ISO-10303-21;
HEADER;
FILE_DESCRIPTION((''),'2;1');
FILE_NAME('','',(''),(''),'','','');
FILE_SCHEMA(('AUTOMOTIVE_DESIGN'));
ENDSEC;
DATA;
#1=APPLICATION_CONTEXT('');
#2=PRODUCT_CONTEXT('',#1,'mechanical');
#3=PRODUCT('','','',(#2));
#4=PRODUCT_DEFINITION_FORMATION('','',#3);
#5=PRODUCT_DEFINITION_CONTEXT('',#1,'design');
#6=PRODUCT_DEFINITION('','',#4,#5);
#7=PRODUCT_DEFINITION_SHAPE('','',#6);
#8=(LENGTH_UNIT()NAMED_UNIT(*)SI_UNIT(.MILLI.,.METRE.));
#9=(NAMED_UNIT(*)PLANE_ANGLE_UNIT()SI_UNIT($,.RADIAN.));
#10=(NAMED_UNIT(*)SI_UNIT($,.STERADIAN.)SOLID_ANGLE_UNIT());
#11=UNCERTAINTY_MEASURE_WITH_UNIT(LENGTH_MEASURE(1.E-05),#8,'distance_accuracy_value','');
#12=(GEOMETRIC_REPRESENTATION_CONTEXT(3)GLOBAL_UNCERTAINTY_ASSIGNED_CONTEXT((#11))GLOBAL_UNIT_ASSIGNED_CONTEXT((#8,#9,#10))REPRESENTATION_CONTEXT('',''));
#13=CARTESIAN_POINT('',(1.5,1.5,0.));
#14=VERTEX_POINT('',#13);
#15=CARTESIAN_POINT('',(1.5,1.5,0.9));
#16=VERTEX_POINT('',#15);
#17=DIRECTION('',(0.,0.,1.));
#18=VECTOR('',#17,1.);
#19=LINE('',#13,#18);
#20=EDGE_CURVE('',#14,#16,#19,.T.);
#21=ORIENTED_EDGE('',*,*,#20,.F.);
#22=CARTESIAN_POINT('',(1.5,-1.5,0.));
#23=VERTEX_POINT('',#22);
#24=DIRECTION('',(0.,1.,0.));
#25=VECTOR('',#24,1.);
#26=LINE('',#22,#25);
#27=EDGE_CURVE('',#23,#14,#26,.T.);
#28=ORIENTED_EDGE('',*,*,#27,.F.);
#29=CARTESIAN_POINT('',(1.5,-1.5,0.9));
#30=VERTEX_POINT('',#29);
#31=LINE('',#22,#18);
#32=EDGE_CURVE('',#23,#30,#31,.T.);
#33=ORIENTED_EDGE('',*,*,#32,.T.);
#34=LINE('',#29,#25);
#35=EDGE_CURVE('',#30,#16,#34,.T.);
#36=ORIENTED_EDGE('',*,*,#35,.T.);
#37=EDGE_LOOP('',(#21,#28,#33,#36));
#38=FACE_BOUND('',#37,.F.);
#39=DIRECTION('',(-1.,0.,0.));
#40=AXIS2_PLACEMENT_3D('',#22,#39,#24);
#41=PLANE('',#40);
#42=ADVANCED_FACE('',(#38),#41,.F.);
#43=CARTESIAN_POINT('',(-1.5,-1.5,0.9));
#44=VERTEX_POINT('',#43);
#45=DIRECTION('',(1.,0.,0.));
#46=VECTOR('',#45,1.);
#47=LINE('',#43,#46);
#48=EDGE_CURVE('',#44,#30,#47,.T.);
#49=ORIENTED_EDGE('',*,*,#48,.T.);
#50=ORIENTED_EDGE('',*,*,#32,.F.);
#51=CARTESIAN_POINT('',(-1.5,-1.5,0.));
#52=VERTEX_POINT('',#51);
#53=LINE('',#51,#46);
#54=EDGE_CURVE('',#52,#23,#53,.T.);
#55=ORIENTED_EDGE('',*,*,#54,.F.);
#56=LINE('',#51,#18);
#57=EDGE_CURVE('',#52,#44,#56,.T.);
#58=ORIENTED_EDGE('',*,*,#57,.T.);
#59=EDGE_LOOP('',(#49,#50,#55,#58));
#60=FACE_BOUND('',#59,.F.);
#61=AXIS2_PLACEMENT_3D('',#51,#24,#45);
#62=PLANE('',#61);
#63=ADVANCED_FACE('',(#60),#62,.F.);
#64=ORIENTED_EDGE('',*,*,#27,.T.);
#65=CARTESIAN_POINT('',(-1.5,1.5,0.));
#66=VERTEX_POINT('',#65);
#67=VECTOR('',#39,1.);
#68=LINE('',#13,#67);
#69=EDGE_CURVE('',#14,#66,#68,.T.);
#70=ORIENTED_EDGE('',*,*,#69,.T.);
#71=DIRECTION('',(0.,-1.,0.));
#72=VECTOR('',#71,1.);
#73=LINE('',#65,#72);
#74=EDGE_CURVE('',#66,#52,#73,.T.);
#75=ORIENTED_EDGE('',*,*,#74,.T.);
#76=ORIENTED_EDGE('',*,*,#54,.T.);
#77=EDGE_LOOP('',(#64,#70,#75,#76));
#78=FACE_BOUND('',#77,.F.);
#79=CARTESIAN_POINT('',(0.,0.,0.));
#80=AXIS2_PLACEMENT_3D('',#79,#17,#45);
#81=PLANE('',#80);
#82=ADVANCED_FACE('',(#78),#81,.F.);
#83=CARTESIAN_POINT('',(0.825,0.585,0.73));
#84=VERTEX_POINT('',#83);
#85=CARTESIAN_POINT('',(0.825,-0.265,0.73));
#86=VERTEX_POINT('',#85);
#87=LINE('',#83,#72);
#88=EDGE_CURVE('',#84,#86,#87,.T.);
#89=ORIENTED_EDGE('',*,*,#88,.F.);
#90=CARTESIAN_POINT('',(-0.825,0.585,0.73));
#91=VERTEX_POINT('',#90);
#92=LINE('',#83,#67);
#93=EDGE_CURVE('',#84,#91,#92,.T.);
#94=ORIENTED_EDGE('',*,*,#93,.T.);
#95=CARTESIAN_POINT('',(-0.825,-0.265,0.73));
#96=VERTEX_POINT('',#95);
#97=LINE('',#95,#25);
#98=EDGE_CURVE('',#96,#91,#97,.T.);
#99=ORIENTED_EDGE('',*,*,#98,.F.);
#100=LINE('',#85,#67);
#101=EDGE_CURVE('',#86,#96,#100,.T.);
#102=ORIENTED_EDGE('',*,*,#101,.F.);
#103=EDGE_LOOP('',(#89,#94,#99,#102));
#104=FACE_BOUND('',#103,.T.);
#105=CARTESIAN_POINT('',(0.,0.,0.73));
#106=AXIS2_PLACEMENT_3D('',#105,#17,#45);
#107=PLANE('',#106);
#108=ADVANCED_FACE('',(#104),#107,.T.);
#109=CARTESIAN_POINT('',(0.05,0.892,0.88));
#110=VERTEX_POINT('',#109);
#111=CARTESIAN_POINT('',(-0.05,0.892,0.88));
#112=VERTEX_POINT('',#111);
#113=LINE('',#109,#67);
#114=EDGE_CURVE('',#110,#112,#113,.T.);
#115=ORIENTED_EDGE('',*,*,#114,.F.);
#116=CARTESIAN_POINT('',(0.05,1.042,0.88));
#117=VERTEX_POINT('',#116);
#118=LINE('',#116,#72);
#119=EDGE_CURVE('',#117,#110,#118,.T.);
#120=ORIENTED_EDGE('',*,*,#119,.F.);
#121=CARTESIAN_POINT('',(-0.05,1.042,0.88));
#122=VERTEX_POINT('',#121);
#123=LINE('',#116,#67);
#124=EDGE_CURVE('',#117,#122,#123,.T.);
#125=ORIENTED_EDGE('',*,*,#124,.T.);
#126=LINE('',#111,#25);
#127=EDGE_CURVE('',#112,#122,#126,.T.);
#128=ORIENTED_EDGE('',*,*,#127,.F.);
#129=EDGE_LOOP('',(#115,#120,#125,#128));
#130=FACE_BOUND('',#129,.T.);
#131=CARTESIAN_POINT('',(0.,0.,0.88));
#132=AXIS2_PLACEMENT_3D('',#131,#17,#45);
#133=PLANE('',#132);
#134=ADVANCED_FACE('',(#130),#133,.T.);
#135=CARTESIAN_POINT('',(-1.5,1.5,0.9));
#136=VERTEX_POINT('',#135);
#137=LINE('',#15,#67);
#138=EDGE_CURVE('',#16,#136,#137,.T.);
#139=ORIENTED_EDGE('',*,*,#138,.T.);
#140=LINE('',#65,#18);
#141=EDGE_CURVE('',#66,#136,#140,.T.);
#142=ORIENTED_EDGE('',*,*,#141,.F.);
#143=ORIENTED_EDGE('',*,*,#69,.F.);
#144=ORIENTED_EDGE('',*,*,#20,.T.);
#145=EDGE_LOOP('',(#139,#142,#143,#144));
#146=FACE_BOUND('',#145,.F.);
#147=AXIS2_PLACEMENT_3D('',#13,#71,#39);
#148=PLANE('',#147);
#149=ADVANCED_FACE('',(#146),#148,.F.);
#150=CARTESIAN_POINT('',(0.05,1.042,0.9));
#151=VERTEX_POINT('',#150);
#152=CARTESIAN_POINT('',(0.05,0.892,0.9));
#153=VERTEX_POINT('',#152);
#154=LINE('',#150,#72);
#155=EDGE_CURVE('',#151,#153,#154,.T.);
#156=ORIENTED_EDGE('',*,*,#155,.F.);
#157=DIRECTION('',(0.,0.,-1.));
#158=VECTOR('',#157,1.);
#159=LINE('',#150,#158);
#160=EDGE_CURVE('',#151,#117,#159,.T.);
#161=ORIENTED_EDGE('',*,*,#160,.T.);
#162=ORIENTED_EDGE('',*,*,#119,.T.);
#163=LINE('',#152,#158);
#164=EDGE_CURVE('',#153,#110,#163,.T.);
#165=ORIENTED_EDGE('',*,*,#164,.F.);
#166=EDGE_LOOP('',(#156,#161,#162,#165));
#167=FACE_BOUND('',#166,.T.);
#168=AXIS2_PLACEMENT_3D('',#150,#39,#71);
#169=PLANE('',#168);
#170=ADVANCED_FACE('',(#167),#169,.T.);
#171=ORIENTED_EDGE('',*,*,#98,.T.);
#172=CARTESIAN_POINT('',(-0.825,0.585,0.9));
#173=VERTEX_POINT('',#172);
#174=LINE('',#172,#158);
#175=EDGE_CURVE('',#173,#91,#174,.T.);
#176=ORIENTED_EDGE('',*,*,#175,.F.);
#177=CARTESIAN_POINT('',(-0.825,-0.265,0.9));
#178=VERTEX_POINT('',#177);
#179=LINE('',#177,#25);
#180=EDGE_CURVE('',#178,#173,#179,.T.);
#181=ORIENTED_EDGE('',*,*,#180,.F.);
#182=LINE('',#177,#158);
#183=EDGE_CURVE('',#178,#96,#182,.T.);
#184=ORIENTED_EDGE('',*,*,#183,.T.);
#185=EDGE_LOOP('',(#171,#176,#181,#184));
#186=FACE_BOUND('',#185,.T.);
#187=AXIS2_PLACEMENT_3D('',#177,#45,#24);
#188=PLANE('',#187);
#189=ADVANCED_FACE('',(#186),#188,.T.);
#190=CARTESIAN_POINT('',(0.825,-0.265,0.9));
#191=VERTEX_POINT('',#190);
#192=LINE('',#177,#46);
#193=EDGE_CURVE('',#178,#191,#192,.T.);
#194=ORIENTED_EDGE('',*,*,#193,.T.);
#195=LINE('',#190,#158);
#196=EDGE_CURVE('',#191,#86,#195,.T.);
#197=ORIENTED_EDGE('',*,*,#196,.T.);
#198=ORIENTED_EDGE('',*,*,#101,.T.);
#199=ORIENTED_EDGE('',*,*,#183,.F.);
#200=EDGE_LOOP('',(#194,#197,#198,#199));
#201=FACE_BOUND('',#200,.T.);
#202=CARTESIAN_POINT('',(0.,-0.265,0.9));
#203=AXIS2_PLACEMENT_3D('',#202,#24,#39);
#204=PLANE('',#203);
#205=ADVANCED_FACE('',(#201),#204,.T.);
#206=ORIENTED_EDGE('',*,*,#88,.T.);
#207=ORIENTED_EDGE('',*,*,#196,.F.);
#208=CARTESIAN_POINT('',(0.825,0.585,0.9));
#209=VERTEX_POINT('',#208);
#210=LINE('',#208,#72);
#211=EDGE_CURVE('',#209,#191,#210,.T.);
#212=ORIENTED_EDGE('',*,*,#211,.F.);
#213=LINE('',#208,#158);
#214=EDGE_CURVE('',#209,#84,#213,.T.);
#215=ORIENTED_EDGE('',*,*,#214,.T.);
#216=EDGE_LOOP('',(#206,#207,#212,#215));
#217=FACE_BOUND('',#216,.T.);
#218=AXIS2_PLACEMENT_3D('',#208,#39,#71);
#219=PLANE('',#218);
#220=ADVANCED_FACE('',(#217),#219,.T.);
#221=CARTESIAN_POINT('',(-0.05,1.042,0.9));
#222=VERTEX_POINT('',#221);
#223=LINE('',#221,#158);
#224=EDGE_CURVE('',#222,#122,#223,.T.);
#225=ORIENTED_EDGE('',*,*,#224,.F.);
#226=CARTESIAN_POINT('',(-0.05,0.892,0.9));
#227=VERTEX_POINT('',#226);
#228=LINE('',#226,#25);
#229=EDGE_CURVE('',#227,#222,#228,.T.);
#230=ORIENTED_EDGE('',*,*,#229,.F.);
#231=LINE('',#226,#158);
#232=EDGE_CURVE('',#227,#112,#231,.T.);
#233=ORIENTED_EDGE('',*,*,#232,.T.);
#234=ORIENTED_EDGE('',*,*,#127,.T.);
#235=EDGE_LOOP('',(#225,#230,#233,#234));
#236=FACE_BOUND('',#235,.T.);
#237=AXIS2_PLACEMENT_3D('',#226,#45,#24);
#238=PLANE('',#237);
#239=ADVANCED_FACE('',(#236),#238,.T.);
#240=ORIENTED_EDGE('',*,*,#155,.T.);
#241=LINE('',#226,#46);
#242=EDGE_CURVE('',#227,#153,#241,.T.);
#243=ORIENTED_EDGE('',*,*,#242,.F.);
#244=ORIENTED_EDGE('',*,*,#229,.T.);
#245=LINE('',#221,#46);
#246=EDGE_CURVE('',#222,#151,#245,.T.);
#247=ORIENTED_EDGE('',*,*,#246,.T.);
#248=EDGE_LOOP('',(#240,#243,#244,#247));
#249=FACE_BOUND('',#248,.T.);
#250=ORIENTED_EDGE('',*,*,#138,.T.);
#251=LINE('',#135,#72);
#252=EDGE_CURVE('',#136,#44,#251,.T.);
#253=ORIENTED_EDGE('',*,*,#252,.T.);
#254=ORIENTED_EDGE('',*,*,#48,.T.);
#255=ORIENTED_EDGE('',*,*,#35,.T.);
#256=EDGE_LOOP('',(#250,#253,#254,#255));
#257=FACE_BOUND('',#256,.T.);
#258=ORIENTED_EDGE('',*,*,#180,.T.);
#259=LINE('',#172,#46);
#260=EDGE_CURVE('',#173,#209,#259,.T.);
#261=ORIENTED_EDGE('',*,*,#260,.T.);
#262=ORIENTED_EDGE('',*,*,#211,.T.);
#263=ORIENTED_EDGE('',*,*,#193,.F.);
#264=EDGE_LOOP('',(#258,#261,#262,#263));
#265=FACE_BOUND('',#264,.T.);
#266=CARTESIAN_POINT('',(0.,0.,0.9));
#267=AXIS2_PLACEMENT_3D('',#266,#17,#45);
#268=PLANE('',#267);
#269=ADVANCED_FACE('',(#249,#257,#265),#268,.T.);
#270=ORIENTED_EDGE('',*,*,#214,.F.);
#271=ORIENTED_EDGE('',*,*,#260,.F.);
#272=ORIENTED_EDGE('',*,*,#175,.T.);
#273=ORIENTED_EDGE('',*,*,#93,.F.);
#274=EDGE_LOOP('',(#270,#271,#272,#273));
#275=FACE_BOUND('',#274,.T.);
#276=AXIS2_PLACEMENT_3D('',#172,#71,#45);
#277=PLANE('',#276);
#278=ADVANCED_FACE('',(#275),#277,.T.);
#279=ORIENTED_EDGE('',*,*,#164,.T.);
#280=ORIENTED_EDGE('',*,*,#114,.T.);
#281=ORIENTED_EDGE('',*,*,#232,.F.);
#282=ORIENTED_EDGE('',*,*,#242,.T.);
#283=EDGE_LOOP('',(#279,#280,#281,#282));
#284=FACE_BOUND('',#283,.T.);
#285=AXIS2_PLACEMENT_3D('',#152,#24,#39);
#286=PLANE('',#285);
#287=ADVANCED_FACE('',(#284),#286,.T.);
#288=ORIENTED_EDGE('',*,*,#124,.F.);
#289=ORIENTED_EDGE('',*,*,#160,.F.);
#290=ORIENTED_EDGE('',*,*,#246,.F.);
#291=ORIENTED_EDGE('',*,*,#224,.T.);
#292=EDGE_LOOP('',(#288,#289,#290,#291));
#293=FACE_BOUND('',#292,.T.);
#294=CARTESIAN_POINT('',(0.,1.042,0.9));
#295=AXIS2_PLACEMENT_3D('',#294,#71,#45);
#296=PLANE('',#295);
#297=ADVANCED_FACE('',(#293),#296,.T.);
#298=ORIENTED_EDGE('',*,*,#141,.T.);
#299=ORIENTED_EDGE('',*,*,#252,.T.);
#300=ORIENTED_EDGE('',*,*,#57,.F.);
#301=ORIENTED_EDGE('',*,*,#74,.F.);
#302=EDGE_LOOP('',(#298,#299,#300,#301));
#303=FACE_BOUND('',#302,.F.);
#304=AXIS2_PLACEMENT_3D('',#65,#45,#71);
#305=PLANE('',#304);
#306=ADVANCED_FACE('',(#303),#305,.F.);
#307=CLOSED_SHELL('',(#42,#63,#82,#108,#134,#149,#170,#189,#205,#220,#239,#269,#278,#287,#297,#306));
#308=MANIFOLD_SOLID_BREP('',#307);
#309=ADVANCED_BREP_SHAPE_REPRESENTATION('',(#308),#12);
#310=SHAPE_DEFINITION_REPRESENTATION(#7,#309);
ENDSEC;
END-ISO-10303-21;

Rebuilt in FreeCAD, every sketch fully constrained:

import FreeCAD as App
import Part
import Sketcher
from FreeCAD import Vector
Q = App.Units.Quantity

doc = App.newDocument("Part")
body = doc.addObject("PartDesign::Body", "Body")

# Sketch on XY plane
sketch1 = body.newObject("Sketcher::SketchObject", "Sketch")
sketch1.AttachmentSupport = (doc.getObject("XY_Plane"), [""])
sketch1.MapMode = "FlatFace"
sketch1.addGeometry([
    Part.LineSegment(Vector(-1.5, 1.5, 0), Vector(-1.5, -1.5, 0)),
    Part.LineSegment(Vector(-1.5, -1.5, 0), Vector(1.5, -1.5, 0)),
    Part.LineSegment(Vector(1.5, -1.5, 0), Vector(1.5, 1.5, 0)),
    Part.LineSegment(Vector(1.5, 1.5, 0), Vector(-1.5, 1.5, 0)),
], False)
sketch1.addConstraint([
    Sketcher.Constraint("Coincident", 0, 2, 1, 1),
    Sketcher.Constraint("Coincident", 1, 2, 2, 1),
    Sketcher.Constraint("Coincident", 2, 2, 3, 1),
    Sketcher.Constraint("Coincident", 3, 2, 0, 1),
    Sketcher.Constraint("Vertical", 0),
    Sketcher.Constraint("Horizontal", 1),
    Sketcher.Constraint("Vertical", 2),
    Sketcher.Constraint("Horizontal", 3),
    Sketcher.Constraint("Symmetric", 0, 2, 2, 2, -1, 1),
    Sketcher.Constraint("Equal", 3, 0),
    Sketcher.Constraint("DistanceX", 1, 1, 1, 2, Q("3 mm")),
])
pad1 = body.newObject("PartDesign::Pad", "Pad")
pad1.Profile = sketch1
pad1.Length = 0.9

# Sketch on XY plane
sketch2 = body.newObject("Sketcher::SketchObject", "Sketch001")
sketch2.AttachmentSupport = (doc.getObject("XY_Plane"), [""])
sketch2.MapMode = "FlatFace"
sketch2.AttachmentOffset = App.Placement(Vector(0, 0, 0.9), App.Rotation())
sketch2.addGeometry([
    Part.LineSegment(Vector(-0.8, 0.6, 0), Vector(-0.8, -0.3, 0)),
    Part.LineSegment(Vector(-0.8, -0.3, 0), Vector(0.8, -0.3, 0)),
    Part.LineSegment(Vector(0.8, -0.3, 0), Vector(0.8, 0.6, 0)),
    Part.LineSegment(Vector(0.8, 0.6, 0), Vector(-0.8, 0.6, 0)),
], False)
sketch2.addConstraint([
    Sketcher.Constraint("Coincident", 0, 2, 1, 1),
    Sketcher.Constraint("Coincident", 1, 2, 2, 1),
    Sketcher.Constraint("Coincident", 2, 2, 3, 1),
    Sketcher.Constraint("Coincident", 3, 2, 0, 1),
    Sketcher.Constraint("Vertical", 0),
    Sketcher.Constraint("Horizontal", 1),
    Sketcher.Constraint("Vertical", 2),
    Sketcher.Constraint("Horizontal", 3),
    Sketcher.Constraint("DistanceX", 1, 1, 1, 2, Q("1.65 mm")),
    Sketcher.Constraint("DistanceY", 0, 2, 0, 1, Q("0.85 mm")),
    Sketcher.Constraint("DistanceX", 0, 2, -1, 1, Q("0.825 mm")),
    Sketcher.Constraint("DistanceY", 0, 2, -1, 1, Q("0.265 mm")),
])
pocket1 = body.newObject("PartDesign::Pocket", "Pocket")
pocket1.Profile = sketch2
pocket1.Length = 0.17

# Sketch on XY plane
sketch3 = body.newObject("Sketcher::SketchObject", "Sketch002")
sketch3.AttachmentSupport = (doc.getObject("XY_Plane"), [""])
sketch3.MapMode = "FlatFace"
sketch3.AttachmentOffset = App.Placement(Vector(0, 0, 0.9), App.Rotation())
sketch3.addGeometry([
    Part.LineSegment(Vector(0.05, 1.04, 0), Vector(-0.05, 1.04, 0)),
    Part.LineSegment(Vector(-0.05, 1.04, 0), Vector(-0.05, 0.89, 0)),
    Part.LineSegment(Vector(-0.05, 0.89, 0), Vector(0.05, 0.89, 0)),
    Part.LineSegment(Vector(0.05, 0.89, 0), Vector(0.05, 1.04, 0)),
], False)
sketch3.addConstraint([
    Sketcher.Constraint("Coincident", 0, 2, 1, 1),
    Sketcher.Constraint("Coincident", 1, 2, 2, 1),
    Sketcher.Constraint("Coincident", 2, 2, 3, 1),
    Sketcher.Constraint("Coincident", 3, 2, 0, 1),
    Sketcher.Constraint("Horizontal", 0),
    Sketcher.Constraint("Vertical", 1),
    Sketcher.Constraint("Horizontal", 2),
    Sketcher.Constraint("Vertical", 3),
    Sketcher.Constraint("DistanceX", 0, 2, 0, 1, Q("0.1 mm")),
    Sketcher.Constraint("DistanceY", 1, 2, 1, 1, Q("0.15 mm")),
    Sketcher.Constraint("DistanceX", 0, 2, -1, 1, Q("0.05 mm")),
    Sketcher.Constraint("DistanceY", -1, 1, 0, 2, Q("1.042 mm")),
])
pocket2 = body.newObject("PartDesign::Pocket", "Pocket001")
pocket2.Profile = sketch3
pocket2.Length = 0.02

doc.recompute()
